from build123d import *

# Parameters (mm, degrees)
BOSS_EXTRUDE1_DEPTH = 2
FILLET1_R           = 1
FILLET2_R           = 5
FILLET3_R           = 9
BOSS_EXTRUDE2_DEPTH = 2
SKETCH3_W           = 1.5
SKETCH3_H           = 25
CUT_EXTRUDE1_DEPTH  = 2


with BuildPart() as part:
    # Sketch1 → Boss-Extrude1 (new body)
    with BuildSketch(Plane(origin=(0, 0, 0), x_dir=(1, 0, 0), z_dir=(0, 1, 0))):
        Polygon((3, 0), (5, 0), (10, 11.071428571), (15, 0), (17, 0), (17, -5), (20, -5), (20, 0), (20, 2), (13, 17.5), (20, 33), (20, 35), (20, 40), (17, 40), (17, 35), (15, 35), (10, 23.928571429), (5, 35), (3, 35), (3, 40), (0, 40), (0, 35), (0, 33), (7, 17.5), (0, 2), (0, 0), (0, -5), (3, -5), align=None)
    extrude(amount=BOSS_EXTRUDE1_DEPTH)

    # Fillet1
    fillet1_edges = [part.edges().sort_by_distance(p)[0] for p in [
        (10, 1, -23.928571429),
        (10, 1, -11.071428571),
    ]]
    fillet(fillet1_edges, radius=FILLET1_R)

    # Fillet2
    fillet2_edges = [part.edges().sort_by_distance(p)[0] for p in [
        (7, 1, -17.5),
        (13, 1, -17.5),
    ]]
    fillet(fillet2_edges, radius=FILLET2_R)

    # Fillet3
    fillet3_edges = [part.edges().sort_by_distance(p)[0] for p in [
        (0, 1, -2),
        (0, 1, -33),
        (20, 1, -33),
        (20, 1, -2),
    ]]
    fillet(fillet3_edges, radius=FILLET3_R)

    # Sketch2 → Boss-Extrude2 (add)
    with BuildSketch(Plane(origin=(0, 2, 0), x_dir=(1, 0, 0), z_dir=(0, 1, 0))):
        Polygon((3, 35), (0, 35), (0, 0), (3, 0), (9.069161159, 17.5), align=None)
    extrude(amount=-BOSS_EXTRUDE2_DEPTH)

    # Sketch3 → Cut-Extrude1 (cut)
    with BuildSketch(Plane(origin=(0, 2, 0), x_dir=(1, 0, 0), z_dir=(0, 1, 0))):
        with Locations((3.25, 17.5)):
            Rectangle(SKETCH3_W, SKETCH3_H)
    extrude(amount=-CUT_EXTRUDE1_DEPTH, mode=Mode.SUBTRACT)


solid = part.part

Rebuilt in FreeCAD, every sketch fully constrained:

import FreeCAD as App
import Part
import Sketcher

V = App.Vector
Q = App.Units.Quantity


def edges_at(feature, points):
    """Names of the edges that pass closest to the given points."""
    edges = feature.Shape.Edges
    near = lambda p: min(range(len(edges)), key=lambda i: edges[i].distToShape(Part.Vertex(*p))[0])
    return sorted({f"Edge{near(p) + 1}" for p in points})

doc = App.newDocument("Part")
params = doc.addObject("Spreadsheet::Sheet", "Params")
for row, (alias, value) in enumerate([
    ("sketch1_width", "2 mm"),
    ("sketch1_width2", "3 mm"),
    ("sketch1_height", "5 mm"),
    ("sketch1_height2", "7 mm"),
    ("pad1_length", "2 mm"),
    ("fillet_radius", "1 mm"),
    ("fillet2_radius", "5 mm"),
    ("fillet3_radius", "9 mm"),
    ("sketch2_width", "3 mm"),
    ("sketch2_height", "35 mm"),
    ("pad2_length", "2 mm"),
    ("sketch3_height", "25 mm"),
    ("sketch3_width", "1.5 mm"),
    ("pocket1_length", "2 mm"),
], start=1):
    params.set(f"A{row}", alias)
    params.set(f"B{row}", "=" + value)
    params.setAlias(f"B{row}", alias)

body = doc.addObject("PartDesign::Body", "Body")

# Sketch on XZ plane
sketch1 = body.newObject("Sketcher::SketchObject", "Sketch")
sketch1.AttachmentSupport = (doc.getObject("XZ_Plane"), [""])
sketch1.MapMode = "FlatFace"
sketch1.addGeometry([
    Part.LineSegment(V(3, 0, 0), V(5, 0, 0)),  # 0
    Part.LineSegment(V(5, 0, 0), V(10, -11.1, 0)),  # 1
    Part.LineSegment(V(10, -11.1, 0), V(15, 0, 0)),  # 2
    Part.LineSegment(V(15, 0, 0), V(17, 0, 0)),  # 3
    Part.LineSegment(V(17, 0, 0), V(17, 5, 0)),  # 4
    Part.LineSegment(V(17, 5, 0), V(20, 5, 0)),  # 5
    Part.LineSegment(V(20, 5, 0), V(20, -2, 0)),  # 6
    Part.LineSegment(V(20, -2, 0), V(13, -17.5, 0)),  # 7
    Part.LineSegment(V(13, -17.5, 0), V(20, -33, 0)),  # 8
    Part.LineSegment(V(20, -33, 0), V(20, -40, 0)),  # 9
    Part.LineSegment(V(20, -40, 0), V(17, -40, 0)),  # 10
    Part.LineSegment(V(17, -40, 0), V(17, -35, 0)),  # 11
    Part.LineSegment(V(17, -35, 0), V(15, -35, 0)),  # 12
    Part.LineSegment(V(15, -35, 0), V(10, -23.9, 0)),  # 13
    Part.LineSegment(V(10, -23.9, 0), V(5, -35, 0)),  # 14
    Part.LineSegment(V(5, -35, 0), V(3, -35, 0)),  # 15
    Part.LineSegment(V(3, -35, 0), V(3, -40, 0)),  # 16
    Part.LineSegment(V(3, -40, 0), V(0, -40, 0)),  # 17
    Part.LineSegment(V(0, -40, 0), V(0, -33, 0)),  # 18
    Part.LineSegment(V(0, -33, 0), V(7, -17.5, 0)),  # 19
    Part.LineSegment(V(7, -17.5, 0), V(0, -2, 0)),  # 20
    Part.LineSegment(V(0, -2, 0), V(0, 5, 0)),  # 21
    Part.LineSegment(V(0, 5, 0), V(3, 5, 0)),  # 22
    Part.LineSegment(V(3, 5, 0), V(3, 0, 0)),  # 23
], False)
sketch1.addConstraint([
    Sketcher.Constraint("Coincident", 0, 2, 1, 1),
    Sketcher.Constraint("Coincident", 1, 2, 2, 1),
    Sketcher.Constraint("Coincident", 2, 2, 3, 1),
    Sketcher.Constraint("Coincident", 3, 2, 4, 1),
    Sketcher.Constraint("Coincident", 4, 2, 5, 1),
    Sketcher.Constraint("Coincident", 5, 2, 6, 1),
    Sketcher.Constraint("Coincident", 6, 2, 7, 1),
    Sketcher.Constraint("Coincident", 7, 2, 8, 1),
    Sketcher.Constraint("Coincident", 8, 2, 9, 1),
    Sketcher.Constraint("Coincident", 9, 2, 10, 1),
    Sketcher.Constraint("Coincident", 10, 2, 11, 1),
    Sketcher.Constraint("Coincident", 11, 2, 12, 1),
    Sketcher.Constraint("Coincident", 12, 2, 13, 1),
    Sketcher.Constraint("Coincident", 13, 2, 14, 1),
    Sketcher.Constraint("Coincident", 14, 2, 15, 1),
    Sketcher.Constraint("Coincident", 15, 2, 16, 1),
    Sketcher.Constraint("Coincident", 16, 2, 17, 1),
    Sketcher.Constraint("Coincident", 17, 2, 18, 1),
    Sketcher.Constraint("Coincident", 18, 2, 19, 1),
    Sketcher.Constraint("Coincident", 19, 2, 20, 1),
    Sketcher.Constraint("Coincident", 20, 2, 21, 1),
    Sketcher.Constraint("Coincident", 21, 2, 22, 1),
    Sketcher.Constraint("Coincident", 22, 2, 23, 1),
    Sketcher.Constraint("Coincident", 23, 2, 0, 1),
    Sketcher.Constraint("Horizontal", 0),
    Sketcher.Constraint("Horizontal", 3),
    Sketcher.Constraint("Vertical", 4),
    Sketcher.Constraint("Horizontal", 5),
    Sketcher.Constraint("Vertical", 6),
    Sketcher.Constraint("Vertical", 9),
    Sketcher.Constraint("Horizontal", 10),
    Sketcher.Constraint("Vertical", 11),
    Sketcher.Constraint("Horizontal", 12),
    Sketcher.Constraint("Horizontal", 15),
    Sketcher.Constraint("Vertical", 16),
    Sketcher.Constraint("Horizontal", 17),
    Sketcher.Constraint("Vertical", 18),
    Sketcher.Constraint("Vertical", 21),
    Sketcher.Constraint("Horizontal", 22),
    Sketcher.Constraint("Vertical", 23),
    Sketcher.Constraint("PointOnObject", 0, 2, -1),
    Sketcher.Constraint("PointOnObject", 2, 2, -1),
    Sketcher.Constraint("PointOnObject", 17, 2, -2),
    Sketcher.Constraint("PointOnObject", 20, 2, -2),
    Sketcher.Constraint("Parallel", 2, 7),
    Sketcher.Constraint("Parallel", 1, 8),
    Sketcher.Constraint("Parallel", 8, 13),
    Sketcher.Constraint("Parallel", 7, 14),
    Sketcher.Constraint("Parallel", 14, 19),
    Sketcher.Constraint("Parallel", 13, 20),
    Sketcher.Constraint("Horizontal", 12, 2, 14, 2),
    Sketcher.Constraint("Horizontal", 10, 2, 16, 2),
    Sketcher.Constraint("Horizontal", 8, 2, 18, 2),
    Sketcher.Constraint("Horizontal", 7, 2, 19, 2),
    Sketcher.Constraint("Horizontal", 6, 2, 20, 2),
    Sketcher.Constraint("Horizontal", 5, 2, 21, 2),
    Sketcher.Constraint("Vertical", 6, 2, 8, 2),
    Sketcher.Constraint("Vertical", 4, 2, 10, 2),
    Sketcher.Constraint("Vertical", 2, 2, 12, 2),
    Sketcher.Constraint("Vertical", 1, 2, 13, 2),
    Sketcher.Constraint("Vertical", 16, 2, 22, 2),
    Sketcher.Constraint("Equal", 0, 3),
    Sketcher.Constraint("Equal", 10, 17),
    Sketcher.Constraint("Equal", 6, 9),
    Sketcher.Constraint("Equal", 4, 11),
    Sketcher.Constraint("DistanceX", 0, 1, 0, 2, Q("2 mm")),
    Sketcher.Constraint("DistanceX", 5, 1, 5, 2, Q("3 mm")),
    Sketcher.Constraint("DistanceY", 4, 1, 4, 2, Q("5 mm")),
    Sketcher.Constraint("DistanceY", 6, 2, 6, 1, Q("7 mm")),
    Sketcher.Constraint("DistanceX", -1, 1, 1, 2, Q("10 mm")),
    Sketcher.Constraint("DistanceX", -1, 1, 7, 2, Q("13 mm")),
    Sketcher.Constraint("DistanceY", 8, 2, -1, 1, Q("33 mm")),
])
sketch1.setExpression("Constraints[65]", "Params.sketch1_width")
sketch1.setExpression("Constraints[66]", "Params.sketch1_width2")
sketch1.setExpression("Constraints[67]", "Params.sketch1_height")
sketch1.setExpression("Constraints[68]", "Params.sketch1_height2")
pad1 = body.newObject("PartDesign::Pad", "Pad")
pad1.Profile = sketch1
pad1.setExpression("Length", "Params.pad1_length")
pad1.Reversed = True
doc.recompute()

fillet = body.newObject("PartDesign::Fillet", "Fillet")
fillet.Base = (pad1, edges_at(pad1, [(10, 1, -23.929), (10, 1, -11.071)]))
fillet.setExpression("Radius", "Params.fillet_radius")
doc.recompute()

fillet2 = body.newObject("PartDesign::Fillet", "Fillet001")
fillet2.Base = (fillet, edges_at(fillet, [(7, 1, -17.5), (13, 1, -17.5)]))
fillet2.setExpression("Radius", "Params.fillet2_radius")
doc.recompute()

fillet3 = body.newObject("PartDesign::Fillet", "Fillet002")
fillet3.Base = (fillet2, edges_at(fillet2, [
    (0, 1, -2),
    (0, 1, -33),
    (20, 1, -33),
    (20, 1, -2),
]))
fillet3.setExpression("Radius", "Params.fillet3_radius")

# Sketch on XZ plane
sketch2 = body.newObject("Sketcher::SketchObject", "Sketch001")
sketch2.AttachmentSupport = (doc.getObject("XZ_Plane"), [""])
sketch2.MapMode = "FlatFace"
sketch2.AttachmentOffset = App.Placement(V(0, 0, -2), App.Rotation())
sketch2.addGeometry([
    Part.LineSegment(V(3, -35, 0), V(0, -35, 0)),  # 0
    Part.LineSegment(V(0, -35, 0), V(0, 0, 0)),  # 1
    Part.LineSegment(V(0, 0, 0), V(3, 0, 0)),  # 2
    Part.LineSegment(V(3, 0, 0), V(9.1, -17.5, 0)),  # 3
    Part.LineSegment(V(9.1, -17.5, 0), V(3, -35, 0)),  # 4
], False)
sketch2.addConstraint([
    Sketcher.Constraint("Coincident", 0, 2, 1, 1),
    Sketcher.Constraint("Coincident", 1, 2, 2, 1),
    Sketcher.Constraint("Coincident", 2, 2, 3, 1),
    Sketcher.Constraint("Coincident", 3, 2, 4, 1),
    Sketcher.Constraint("Coincident", 4, 2, 0, 1),
    Sketcher.Constraint("Horizontal", 0),
    Sketcher.Constraint("Vertical", 1),
    Sketcher.Constraint("Horizontal", 2),
    Sketcher.Constraint("Coincident", 1, 2, -1, 1),
    Sketcher.Constraint("Vertical", 2, 2, 4, 2),
    Sketcher.Constraint("Equal", 3, 4),
    Sketcher.Constraint("DistanceX", 0, 2, 0, 1, Q("3 mm")),
    Sketcher.Constraint("DistanceY", 1, 1, 1, 2, Q("35 mm")),
    Sketcher.Constraint("DistanceX", -1, 1, 3, 2, Q("9.069161 mm")),
])
sketch2.setExpression("Constraints[11]", "Params.sketch2_width")
sketch2.setExpression("Constraints[12]", "Params.sketch2_height")
pad2 = body.newObject("PartDesign::Pad", "Pad001")
pad2.Profile = sketch2
pad2.setExpression("Length", "Params.pad2_length")

# Sketch on XZ plane
sketch3 = body.newObject("Sketcher::SketchObject", "Sketch002")
sketch3.AttachmentSupport = (doc.getObject("XZ_Plane"), [""])
sketch3.MapMode = "FlatFace"
sketch3.AttachmentOffset = App.Placement(V(0, 0, -2), App.Rotation())
sketch3.addGeometry([
    Part.LineSegment(V(2.5, -30, 0), V(2.5, -5, 0)),
    Part.LineSegment(V(2.5, -5, 0), V(4, -5, 0)),
    Part.LineSegment(V(4, -5, 0), V(4, -30, 0)),
    Part.LineSegment(V(4, -30, 0), V(2.5, -30, 0)),
], False)
sketch3.addConstraint([
    Sketcher.Constraint("Coincident", 0, 2, 1, 1),
    Sketcher.Constraint("Coincident", 1, 2, 2, 1),
    Sketcher.Constraint("Coincident", 2, 2, 3, 1),
    Sketcher.Constraint("Coincident", 3, 2, 0, 1),
    Sketcher.Constraint("Vertical", 0),
    Sketcher.Constraint("Horizontal", 1),
    Sketcher.Constraint("Vertical", 2),
    Sketcher.Constraint("Horizontal", 3),
    Sketcher.Constraint("DistanceY", 0, 1, 0, 2, Q("25 mm")),
    Sketcher.Constraint("DistanceX", 1, 1, 1, 2, Q("1.5 mm")),
    Sketcher.Constraint("DistanceY", 0, 2, -1, 1, Q("5 mm")),
    Sketcher.Constraint("DistanceX", -1, 1, 1, 2, Q("4 mm")),
])
sketch3.setExpression("Constraints[8]", "Params.sketch3_height")
sketch3.setExpression("Constraints[9]", "Params.sketch3_width")
pocket1 = body.newObject("PartDesign::Pocket", "Pocket")
pocket1.Profile = sketch3
pocket1.setExpression("Length", "Params.pocket1_length")
pocket1.Reversed = True

doc.recompute()
